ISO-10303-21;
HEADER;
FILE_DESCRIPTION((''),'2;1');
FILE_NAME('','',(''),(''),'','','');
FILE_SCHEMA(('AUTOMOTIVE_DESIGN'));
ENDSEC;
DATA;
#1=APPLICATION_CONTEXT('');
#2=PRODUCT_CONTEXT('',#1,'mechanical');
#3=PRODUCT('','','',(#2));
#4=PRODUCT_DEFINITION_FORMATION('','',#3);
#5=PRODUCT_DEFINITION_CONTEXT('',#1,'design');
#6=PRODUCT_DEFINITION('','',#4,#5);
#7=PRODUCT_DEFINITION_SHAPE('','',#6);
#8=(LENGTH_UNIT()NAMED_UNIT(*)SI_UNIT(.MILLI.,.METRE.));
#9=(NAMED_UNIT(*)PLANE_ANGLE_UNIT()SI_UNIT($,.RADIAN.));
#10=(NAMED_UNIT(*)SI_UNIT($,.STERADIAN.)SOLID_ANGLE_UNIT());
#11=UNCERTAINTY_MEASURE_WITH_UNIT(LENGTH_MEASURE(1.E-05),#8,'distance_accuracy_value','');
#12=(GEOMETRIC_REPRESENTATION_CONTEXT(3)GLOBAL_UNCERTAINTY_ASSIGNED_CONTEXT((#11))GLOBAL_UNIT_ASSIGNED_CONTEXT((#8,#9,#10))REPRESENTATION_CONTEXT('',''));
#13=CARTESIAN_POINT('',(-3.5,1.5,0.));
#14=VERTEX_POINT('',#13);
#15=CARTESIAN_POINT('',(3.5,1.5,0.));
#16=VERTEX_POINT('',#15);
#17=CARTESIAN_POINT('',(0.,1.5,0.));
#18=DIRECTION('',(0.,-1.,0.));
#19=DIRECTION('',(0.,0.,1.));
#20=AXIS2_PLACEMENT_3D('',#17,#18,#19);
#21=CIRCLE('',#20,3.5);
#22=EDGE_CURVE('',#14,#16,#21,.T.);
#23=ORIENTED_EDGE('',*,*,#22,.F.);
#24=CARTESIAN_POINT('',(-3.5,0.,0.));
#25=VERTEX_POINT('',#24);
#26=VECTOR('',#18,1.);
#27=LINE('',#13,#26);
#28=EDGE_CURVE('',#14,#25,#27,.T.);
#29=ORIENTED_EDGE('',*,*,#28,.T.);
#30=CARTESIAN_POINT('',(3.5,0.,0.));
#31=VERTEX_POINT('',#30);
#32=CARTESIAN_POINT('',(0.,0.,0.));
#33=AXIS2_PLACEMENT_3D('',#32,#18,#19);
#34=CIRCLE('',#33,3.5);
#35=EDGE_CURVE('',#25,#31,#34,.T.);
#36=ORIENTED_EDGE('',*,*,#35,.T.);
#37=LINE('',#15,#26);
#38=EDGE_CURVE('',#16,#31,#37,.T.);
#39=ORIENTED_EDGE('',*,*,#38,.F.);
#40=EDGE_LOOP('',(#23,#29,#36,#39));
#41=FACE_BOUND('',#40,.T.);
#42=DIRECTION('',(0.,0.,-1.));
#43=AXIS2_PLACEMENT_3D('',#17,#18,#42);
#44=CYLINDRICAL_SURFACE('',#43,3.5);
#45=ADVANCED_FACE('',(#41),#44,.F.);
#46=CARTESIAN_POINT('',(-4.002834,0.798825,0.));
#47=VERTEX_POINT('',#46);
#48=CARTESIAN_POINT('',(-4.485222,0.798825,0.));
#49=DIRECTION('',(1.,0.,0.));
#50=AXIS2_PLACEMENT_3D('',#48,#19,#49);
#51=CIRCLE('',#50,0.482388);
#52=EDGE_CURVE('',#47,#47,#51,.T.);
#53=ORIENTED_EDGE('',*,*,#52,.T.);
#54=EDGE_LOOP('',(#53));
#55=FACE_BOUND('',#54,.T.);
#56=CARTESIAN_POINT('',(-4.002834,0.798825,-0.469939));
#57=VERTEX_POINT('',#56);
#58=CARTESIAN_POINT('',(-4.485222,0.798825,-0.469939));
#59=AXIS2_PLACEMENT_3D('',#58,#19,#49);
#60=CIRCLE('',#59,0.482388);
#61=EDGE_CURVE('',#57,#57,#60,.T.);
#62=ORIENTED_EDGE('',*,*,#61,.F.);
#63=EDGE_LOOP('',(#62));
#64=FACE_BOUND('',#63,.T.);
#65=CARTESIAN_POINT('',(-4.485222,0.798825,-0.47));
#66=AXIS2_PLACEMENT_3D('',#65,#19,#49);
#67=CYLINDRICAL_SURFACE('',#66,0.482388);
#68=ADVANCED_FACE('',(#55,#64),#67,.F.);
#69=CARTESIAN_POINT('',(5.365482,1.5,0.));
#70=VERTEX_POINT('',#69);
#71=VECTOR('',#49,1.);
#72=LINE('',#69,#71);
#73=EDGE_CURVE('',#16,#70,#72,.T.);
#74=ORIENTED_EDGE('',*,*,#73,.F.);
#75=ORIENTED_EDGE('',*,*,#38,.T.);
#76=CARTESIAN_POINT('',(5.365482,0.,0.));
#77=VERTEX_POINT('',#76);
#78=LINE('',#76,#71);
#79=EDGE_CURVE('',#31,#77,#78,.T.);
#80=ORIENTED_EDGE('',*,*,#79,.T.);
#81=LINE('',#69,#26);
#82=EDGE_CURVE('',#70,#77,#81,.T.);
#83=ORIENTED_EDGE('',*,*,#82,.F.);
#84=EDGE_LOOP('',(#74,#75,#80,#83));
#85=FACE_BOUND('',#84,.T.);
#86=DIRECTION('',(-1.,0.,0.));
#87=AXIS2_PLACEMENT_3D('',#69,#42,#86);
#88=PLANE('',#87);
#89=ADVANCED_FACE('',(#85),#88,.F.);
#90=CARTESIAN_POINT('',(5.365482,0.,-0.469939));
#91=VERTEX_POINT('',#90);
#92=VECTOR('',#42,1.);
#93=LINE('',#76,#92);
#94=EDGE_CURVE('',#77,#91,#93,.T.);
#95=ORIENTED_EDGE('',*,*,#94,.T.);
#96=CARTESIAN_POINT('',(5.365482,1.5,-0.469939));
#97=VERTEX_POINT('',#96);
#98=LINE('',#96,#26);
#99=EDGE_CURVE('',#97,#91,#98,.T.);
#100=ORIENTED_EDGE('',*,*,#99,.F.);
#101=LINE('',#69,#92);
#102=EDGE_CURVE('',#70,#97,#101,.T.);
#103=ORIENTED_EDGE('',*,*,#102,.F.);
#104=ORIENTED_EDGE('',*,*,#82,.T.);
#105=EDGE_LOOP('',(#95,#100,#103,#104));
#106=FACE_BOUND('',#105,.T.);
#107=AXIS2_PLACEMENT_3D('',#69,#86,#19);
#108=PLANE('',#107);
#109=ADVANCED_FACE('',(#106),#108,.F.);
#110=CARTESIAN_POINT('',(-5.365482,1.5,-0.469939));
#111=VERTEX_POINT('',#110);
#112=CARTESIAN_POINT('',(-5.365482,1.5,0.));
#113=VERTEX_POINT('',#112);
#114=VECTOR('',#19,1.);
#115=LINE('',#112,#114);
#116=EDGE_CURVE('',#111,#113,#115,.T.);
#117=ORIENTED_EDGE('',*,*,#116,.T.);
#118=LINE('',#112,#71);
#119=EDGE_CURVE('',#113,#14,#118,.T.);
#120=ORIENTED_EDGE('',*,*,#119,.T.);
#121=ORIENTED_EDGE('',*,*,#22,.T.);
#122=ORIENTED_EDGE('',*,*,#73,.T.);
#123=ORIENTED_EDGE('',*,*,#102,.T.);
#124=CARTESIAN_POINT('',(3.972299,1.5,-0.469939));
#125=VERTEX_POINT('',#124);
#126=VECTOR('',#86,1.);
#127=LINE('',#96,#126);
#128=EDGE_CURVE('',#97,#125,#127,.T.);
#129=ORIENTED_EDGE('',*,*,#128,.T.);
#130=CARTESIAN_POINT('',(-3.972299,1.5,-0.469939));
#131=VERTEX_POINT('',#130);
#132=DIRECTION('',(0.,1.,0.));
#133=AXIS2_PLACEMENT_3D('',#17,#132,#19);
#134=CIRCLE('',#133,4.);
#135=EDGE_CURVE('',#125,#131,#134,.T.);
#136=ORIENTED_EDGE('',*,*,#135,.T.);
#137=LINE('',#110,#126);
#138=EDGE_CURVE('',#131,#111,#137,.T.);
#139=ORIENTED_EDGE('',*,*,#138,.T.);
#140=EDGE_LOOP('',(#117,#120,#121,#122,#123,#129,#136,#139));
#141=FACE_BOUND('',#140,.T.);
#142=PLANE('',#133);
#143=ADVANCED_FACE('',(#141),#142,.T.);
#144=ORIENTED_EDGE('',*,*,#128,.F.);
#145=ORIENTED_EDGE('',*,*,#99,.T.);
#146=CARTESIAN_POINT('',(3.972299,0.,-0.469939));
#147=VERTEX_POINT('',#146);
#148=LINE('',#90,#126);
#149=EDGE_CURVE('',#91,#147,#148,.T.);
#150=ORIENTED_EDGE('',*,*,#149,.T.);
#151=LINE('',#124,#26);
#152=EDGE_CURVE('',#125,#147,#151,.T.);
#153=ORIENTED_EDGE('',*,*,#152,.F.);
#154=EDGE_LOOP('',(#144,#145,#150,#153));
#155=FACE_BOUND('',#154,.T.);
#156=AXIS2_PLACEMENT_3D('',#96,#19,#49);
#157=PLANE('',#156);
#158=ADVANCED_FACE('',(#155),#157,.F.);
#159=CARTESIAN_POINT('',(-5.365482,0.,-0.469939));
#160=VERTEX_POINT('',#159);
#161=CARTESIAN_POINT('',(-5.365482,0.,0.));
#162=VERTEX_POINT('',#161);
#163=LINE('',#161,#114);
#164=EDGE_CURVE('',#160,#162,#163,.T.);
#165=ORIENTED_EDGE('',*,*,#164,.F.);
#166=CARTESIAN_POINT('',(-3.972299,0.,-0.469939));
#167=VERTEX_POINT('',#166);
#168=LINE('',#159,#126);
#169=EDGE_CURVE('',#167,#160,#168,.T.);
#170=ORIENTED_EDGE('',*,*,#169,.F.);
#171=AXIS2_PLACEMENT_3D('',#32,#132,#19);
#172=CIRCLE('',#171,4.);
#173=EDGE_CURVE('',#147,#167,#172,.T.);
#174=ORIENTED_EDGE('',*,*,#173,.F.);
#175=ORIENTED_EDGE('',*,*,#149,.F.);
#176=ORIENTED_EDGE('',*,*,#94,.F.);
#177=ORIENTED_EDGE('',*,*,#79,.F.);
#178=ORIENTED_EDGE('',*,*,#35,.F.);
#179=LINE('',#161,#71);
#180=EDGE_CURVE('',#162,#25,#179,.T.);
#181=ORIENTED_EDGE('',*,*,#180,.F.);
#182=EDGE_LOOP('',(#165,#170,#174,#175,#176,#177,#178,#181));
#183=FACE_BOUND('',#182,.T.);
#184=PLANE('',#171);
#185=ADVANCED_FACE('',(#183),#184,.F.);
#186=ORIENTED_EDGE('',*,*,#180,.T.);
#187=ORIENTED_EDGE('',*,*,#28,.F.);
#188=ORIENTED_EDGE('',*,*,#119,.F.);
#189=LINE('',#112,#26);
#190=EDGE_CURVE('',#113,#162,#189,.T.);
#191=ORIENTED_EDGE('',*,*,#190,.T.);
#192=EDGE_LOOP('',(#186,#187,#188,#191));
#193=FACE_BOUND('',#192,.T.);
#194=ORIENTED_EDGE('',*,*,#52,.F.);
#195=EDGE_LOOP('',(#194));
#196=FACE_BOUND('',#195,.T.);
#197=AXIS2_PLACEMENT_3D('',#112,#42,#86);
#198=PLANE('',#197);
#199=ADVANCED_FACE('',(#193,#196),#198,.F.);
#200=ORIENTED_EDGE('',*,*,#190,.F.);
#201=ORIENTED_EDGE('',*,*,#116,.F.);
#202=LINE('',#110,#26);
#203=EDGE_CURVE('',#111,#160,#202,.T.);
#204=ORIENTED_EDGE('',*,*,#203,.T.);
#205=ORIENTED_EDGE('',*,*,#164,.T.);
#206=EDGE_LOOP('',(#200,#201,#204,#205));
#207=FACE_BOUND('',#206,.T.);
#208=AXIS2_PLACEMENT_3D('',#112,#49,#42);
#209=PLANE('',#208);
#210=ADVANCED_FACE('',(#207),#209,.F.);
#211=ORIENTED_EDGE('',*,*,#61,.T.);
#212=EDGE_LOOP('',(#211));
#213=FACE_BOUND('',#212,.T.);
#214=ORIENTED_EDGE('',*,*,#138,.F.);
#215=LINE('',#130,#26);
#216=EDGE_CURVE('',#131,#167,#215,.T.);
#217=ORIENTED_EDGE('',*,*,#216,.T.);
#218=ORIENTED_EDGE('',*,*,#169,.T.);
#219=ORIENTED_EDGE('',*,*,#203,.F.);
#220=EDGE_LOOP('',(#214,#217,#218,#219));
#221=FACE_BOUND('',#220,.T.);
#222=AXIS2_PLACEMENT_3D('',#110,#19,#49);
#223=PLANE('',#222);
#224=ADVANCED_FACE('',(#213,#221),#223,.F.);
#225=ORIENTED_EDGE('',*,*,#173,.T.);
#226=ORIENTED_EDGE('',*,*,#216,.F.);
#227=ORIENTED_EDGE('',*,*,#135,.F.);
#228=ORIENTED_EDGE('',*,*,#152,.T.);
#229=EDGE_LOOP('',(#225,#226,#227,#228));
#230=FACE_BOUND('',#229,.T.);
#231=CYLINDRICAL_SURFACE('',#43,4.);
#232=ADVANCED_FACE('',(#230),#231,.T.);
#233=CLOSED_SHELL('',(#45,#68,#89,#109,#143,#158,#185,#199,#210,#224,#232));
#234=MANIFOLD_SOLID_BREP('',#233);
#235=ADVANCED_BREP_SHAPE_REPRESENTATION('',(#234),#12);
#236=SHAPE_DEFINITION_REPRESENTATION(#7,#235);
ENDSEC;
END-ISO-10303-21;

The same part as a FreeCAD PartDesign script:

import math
import FreeCAD as App
import Part
import Sketcher
Q = App.Units.Quantity

doc = App.newDocument("Part")
body = doc.addObject("PartDesign::Body", "Body")

# Sketch on XZ plane
sketch1 = doc.addObject("Sketcher::SketchObject", "Sketch")
body.addObject(sketch1)
sketch1.AttachmentSupport = (doc.XZ_Plane, [""])
sketch1.MapMode = "FlatFace"
sketch1.addGeometry([
    Part.LineSegment(App.Vector(3.5, 0, 0), App.Vector(5.365482, 0, 0)),  # 0
    Part.LineSegment(App.Vector(5.365482, 0, 0), App.Vector(5.365482, -0.469939, 0)),  # 1
    Part.LineSegment(App.Vector(5.365482, -0.469939, 0), App.Vector(3.972299, -0.469939, 0)),  # 2
    Part.ArcOfCircle(Part.Circle(App.Vector(0, 0, 0), App.Vector(0, 0, 1), 4), math.radians(-173.253031), math.radians(-6.746969)),  # 3
    Part.LineSegment(App.Vector(-3.972299, -0.469939, 0), App.Vector(-5.365482, -0.469939, 0)),  # 4
    Part.LineSegment(App.Vector(-5.365482, -0.469939, 0), App.Vector(-5.365482, 0, 0)),  # 5
    Part.LineSegment(App.Vector(-5.365482, 0, 0), App.Vector(-3.5, 0, 0)),  # 6
    Part.ArcOfCircle(Part.Circle(App.Vector(0, 0, 0), App.Vector(0, 0, 1), 3.5), math.radians(180), math.radians(360)),  # 7
], False)
sketch1.addConstraint([
    Sketcher.Constraint("Coincident", 0, 2, 1, 1),
    Sketcher.Constraint("Coincident", 1, 2, 2, 1),
    Sketcher.Constraint("Coincident", 2, 2, 3, 2),
    Sketcher.Constraint("Coincident", 3, 1, 4, 1),
    Sketcher.Constraint("Coincident", 4, 2, 5, 1),
    Sketcher.Constraint("Coincident", 5, 2, 6, 1),
    Sketcher.Constraint("Coincident", 6, 2, 7, 1),
    Sketcher.Constraint("Coincident", 7, 2, 0, 1),
    Sketcher.Constraint("Horizontal", 0),
    Sketcher.Constraint("Vertical", 1),
    Sketcher.Constraint("Horizontal", 2),
    Sketcher.Constraint("Horizontal", 4),
    Sketcher.Constraint("Vertical", 5),
    Sketcher.Constraint("Horizontal", 6),
    Sketcher.Constraint("Coincident", 3, 3, -1, 1),
    Sketcher.Constraint("Coincident", 7, 3, -1, 1),
    Sketcher.Constraint("Symmetric", 0, 2, 5, 2, -1, 1),
    Sketcher.Constraint("PointOnObject", 0, 2, -1),
    Sketcher.Constraint("Horizontal", 2, 2, 3, 1),
    Sketcher.Constraint("Radius", 3, Q("4 mm")),
    Sketcher.Constraint("Radius", 7, Q("3.5 mm")),
    Sketcher.Constraint("DistanceY", 1, 2, 1, 1, Q("0.469939 mm")),
    Sketcher.Constraint("DistanceX", 0, 1, 0, 2, Q("1.865482 mm")),
])
pad1 = doc.addObject("PartDesign::Pad", "Pad")
body.addObject(pad1)
pad1.Profile = sketch1
pad1.Length = 1.5
pad1.Reversed = True

# Sketch on XY plane
sketch2 = doc.addObject("Sketcher::SketchObject", "Sketch001")
body.addObject(sketch2)
sketch2.AttachmentSupport = (doc.XY_Plane, [""])
sketch2.MapMode = "FlatFace"
sketch2.addGeometry(Part.Circle(App.Vector(-4.485222, 0.798825, 0), App.Vector(0, 0, 1), 0.482388), False)
sketch2.addConstraint([
    Sketcher.Constraint("Diameter", 0, Q("0.964777 mm")),
    Sketcher.Constraint("DistanceX", 0, 3, -1, 1, Q("4.485222 mm")),
    Sketcher.Constraint("DistanceY", -1, 1, 0, 3, Q("0.798825 mm")),
])
pocket1 = doc.addObject("PartDesign::Pocket", "Pocket")
body.addObject(pocket1)
pocket1.Profile = sketch2
pocket1.Length = 0.47

doc.recompute()
